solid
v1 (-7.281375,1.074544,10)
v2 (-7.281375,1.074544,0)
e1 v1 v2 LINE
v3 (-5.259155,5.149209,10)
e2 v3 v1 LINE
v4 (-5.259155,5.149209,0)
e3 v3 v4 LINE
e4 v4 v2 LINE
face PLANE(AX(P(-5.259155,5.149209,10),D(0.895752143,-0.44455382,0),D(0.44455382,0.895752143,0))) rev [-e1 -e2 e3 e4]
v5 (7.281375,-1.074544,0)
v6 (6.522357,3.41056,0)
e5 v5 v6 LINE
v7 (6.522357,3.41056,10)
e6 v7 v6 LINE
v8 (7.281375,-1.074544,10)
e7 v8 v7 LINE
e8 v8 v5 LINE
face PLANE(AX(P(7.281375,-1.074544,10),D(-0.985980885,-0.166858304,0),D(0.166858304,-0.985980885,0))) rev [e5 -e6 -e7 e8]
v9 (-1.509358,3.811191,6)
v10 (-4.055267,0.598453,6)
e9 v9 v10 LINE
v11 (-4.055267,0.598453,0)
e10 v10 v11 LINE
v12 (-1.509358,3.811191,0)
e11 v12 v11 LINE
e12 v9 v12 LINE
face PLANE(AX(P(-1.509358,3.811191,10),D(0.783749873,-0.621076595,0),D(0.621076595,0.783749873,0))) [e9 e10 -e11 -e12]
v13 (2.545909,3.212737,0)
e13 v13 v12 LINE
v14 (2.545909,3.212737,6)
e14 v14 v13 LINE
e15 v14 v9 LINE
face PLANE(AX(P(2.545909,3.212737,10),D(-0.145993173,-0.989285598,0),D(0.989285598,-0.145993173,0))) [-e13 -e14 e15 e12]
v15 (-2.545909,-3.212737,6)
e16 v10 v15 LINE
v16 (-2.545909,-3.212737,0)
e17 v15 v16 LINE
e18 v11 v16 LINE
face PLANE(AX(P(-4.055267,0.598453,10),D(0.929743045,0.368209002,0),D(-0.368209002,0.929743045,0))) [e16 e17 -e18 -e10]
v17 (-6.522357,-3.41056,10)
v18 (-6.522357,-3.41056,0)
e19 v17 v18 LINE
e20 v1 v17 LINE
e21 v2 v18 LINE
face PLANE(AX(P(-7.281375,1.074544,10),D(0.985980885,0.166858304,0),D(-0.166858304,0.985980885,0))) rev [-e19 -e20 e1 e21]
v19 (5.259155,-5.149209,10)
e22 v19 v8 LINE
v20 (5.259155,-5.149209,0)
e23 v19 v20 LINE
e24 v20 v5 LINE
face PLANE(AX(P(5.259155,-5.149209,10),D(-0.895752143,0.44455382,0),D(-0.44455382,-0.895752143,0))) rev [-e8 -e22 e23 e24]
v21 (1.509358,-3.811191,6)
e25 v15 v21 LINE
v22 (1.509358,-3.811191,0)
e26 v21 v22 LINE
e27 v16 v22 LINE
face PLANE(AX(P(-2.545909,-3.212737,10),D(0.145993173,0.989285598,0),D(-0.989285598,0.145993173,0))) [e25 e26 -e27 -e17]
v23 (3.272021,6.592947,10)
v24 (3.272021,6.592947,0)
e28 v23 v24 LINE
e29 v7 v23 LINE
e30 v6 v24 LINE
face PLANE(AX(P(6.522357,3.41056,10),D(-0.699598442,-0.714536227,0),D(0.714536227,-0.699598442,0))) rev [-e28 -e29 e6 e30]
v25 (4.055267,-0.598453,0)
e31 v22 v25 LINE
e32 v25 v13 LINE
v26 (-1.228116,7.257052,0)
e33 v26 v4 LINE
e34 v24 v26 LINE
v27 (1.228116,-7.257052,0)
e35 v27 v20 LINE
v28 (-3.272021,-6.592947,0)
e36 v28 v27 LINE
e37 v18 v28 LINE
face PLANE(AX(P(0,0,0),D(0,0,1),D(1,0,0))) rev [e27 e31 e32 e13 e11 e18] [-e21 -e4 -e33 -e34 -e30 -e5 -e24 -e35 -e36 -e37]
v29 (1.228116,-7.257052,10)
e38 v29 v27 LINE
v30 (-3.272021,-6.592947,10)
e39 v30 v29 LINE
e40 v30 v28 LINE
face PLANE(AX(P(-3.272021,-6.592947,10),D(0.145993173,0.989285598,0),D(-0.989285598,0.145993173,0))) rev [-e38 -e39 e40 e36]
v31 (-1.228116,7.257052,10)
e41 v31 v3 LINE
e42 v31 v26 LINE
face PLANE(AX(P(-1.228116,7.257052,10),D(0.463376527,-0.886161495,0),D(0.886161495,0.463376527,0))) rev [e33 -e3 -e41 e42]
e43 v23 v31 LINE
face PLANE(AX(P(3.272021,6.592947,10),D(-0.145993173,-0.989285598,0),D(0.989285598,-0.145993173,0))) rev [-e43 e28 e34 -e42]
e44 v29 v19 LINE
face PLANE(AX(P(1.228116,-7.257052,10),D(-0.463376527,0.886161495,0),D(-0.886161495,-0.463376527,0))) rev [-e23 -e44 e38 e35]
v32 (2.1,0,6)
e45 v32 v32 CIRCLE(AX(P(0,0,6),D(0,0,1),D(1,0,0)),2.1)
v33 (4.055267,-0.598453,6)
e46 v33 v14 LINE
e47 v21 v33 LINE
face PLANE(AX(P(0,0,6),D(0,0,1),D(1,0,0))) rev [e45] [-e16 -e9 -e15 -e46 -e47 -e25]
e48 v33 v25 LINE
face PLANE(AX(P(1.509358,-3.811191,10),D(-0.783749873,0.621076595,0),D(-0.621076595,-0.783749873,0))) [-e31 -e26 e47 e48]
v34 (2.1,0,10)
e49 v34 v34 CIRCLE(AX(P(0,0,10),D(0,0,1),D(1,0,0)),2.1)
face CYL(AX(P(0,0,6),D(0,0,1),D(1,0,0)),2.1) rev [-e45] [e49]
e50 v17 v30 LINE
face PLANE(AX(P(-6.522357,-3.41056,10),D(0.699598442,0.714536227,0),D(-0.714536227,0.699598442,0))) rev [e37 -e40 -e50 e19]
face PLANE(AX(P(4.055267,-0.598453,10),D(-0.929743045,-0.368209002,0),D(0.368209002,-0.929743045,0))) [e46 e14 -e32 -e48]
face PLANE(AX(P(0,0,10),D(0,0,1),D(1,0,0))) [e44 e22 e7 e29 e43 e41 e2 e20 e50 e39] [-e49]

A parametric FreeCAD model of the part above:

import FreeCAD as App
import Part
import Sketcher
Q = App.Units.Quantity


def add_polygon(sketch, points):
    """Adds a closed chain of lines whose ends are joined by coincident constraints."""
    first, n = sketch.GeometryCount, len(points)
    for a, b in zip(points, points[1:] + points[:1]):
        sketch.addGeometry(Part.LineSegment(App.Vector(*a, 0), App.Vector(*b, 0)), False)
    for i in range(n):
        sketch.addConstraint(Sketcher.Constraint("Coincident", first + i, 2, first + (i + 1) % n, 1))

doc = App.newDocument("Part")
body = doc.addObject("PartDesign::Body", "Body")

# Sketch on XY plane
sketch1 = doc.addObject("Sketcher::SketchObject", "Sketch")
body.addObject(sketch1)
sketch1.AttachmentSupport = (doc.XY_Plane, [""])
sketch1.MapMode = "FlatFace"
add_polygon(sketch1, [(-5.3, 5.1), (-7.3, 1.1), (-6.5, -3.4), (-3.3, -6.6), (1.2, -7.3), (5.3, -5.1), (7.3, -1.1), (6.5, 3.4), (3.3, 6.6), (-1.2, 7.3)])  # lines 0-9
add_polygon(sketch1, [(4.1, -0.6), (1.5, -3.8), (-2.5, -3.2), (-4.1, 0.6), (-1.5, 3.8), (2.5, 3.2)])  # lines 10-15
sketch1.addConstraint([
    Sketcher.Constraint("Symmetric", 0, 2, 5, 2, -1, 1),
    Sketcher.Constraint("Symmetric", 1, 2, 6, 2, -1, 1),
    Sketcher.Constraint("Symmetric", 2, 2, 7, 2, -1, 1),
    Sketcher.Constraint("Symmetric", 3, 2, 8, 2, -1, 1),
    Sketcher.Constraint("Symmetric", 4, 2, 9, 2, -1, 1),
    Sketcher.Constraint("Symmetric", 10, 2, 13, 2, -1, 1),
    Sketcher.Constraint("Symmetric", 11, 2, 14, 2, -1, 1),
    Sketcher.Constraint("Symmetric", 12, 2, 15, 2, -1, 1),
    Sketcher.Constraint("Parallel", 8, 11),
    Sketcher.Constraint("Equal", 0, 1),
    Sketcher.Constraint("Equal", 1, 2),
    Sketcher.Constraint("Equal", 2, 3),
    Sketcher.Constraint("Equal", 3, 4),
    Sketcher.Constraint("Equal", 10, 11),
    Sketcher.Constraint("Equal", 11, 12),
    Sketcher.Constraint("DistanceY", 1, 2, -1, 1, Q("3.41056 mm")),
    Sketcher.Constraint("DistanceX", 2, 2, -1, 1, Q("3.272021 mm")),
    Sketcher.Constraint("DistanceY", 3, 2, -1, 1, Q("7.257052 mm")),
    Sketcher.Constraint("DistanceY", 4, 2, -1, 1, Q("5.149209 mm")),
    Sketcher.Constraint("DistanceY", 10, 2, -1, 1, Q("3.811191 mm")),
    Sketcher.Constraint("DistanceX", 11, 2, -1, 1, Q("2.545909 mm")),
    Sketcher.Constraint("DistanceY", 2, 2, 0, 2, Q("7.667491 mm")),
    Sketcher.Constraint("DistanceX", 0, 2, 3, 2, Q("8.509491 mm")),
    Sketcher.Constraint("DistanceX", 3, 2, 10, 2, Q("0.281241 mm")),
])
pad1 = doc.addObject("PartDesign::Pad", "Pad")
body.addObject(pad1)
pad1.Profile = sketch1
pad1.Length = 10

# Sketch on XY plane
sketch2 = doc.addObject("Sketcher::SketchObject", "Sketch001")
body.addObject(sketch2)
sketch2.AttachmentSupport = (doc.XY_Plane, [""])
sketch2.MapMode = "FlatFace"
sketch2.AttachmentOffset = App.Placement(App.Vector(0, 0, 10), App.Rotation())
sketch2.addGeometry([
    Part.Circle(App.Vector(0, 0, 0), App.Vector(0, 0, 1), 4.5),
    Part.Circle(App.Vector(0, 0, 0), App.Vector(0, 0, 1), 2.1),
], False)
sketch2.addConstraint([
    Sketcher.Constraint("Coincident", 0, 3, -1, 1),
    Sketcher.Constraint("Coincident", 1, 3, -1, 1),
    Sketcher.Constraint("Diameter", 1, Q("4.2 mm")),
    Sketcher.Constraint("Diameter", 0, Q("9.035881 mm")),
])
pad2 = doc.addObject("PartDesign::Pad", "Pad001")
body.addObject(pad2)
pad2.Profile = sketch2
pad2.Length = 4
pad2.Reversed = True

doc.recompute()
